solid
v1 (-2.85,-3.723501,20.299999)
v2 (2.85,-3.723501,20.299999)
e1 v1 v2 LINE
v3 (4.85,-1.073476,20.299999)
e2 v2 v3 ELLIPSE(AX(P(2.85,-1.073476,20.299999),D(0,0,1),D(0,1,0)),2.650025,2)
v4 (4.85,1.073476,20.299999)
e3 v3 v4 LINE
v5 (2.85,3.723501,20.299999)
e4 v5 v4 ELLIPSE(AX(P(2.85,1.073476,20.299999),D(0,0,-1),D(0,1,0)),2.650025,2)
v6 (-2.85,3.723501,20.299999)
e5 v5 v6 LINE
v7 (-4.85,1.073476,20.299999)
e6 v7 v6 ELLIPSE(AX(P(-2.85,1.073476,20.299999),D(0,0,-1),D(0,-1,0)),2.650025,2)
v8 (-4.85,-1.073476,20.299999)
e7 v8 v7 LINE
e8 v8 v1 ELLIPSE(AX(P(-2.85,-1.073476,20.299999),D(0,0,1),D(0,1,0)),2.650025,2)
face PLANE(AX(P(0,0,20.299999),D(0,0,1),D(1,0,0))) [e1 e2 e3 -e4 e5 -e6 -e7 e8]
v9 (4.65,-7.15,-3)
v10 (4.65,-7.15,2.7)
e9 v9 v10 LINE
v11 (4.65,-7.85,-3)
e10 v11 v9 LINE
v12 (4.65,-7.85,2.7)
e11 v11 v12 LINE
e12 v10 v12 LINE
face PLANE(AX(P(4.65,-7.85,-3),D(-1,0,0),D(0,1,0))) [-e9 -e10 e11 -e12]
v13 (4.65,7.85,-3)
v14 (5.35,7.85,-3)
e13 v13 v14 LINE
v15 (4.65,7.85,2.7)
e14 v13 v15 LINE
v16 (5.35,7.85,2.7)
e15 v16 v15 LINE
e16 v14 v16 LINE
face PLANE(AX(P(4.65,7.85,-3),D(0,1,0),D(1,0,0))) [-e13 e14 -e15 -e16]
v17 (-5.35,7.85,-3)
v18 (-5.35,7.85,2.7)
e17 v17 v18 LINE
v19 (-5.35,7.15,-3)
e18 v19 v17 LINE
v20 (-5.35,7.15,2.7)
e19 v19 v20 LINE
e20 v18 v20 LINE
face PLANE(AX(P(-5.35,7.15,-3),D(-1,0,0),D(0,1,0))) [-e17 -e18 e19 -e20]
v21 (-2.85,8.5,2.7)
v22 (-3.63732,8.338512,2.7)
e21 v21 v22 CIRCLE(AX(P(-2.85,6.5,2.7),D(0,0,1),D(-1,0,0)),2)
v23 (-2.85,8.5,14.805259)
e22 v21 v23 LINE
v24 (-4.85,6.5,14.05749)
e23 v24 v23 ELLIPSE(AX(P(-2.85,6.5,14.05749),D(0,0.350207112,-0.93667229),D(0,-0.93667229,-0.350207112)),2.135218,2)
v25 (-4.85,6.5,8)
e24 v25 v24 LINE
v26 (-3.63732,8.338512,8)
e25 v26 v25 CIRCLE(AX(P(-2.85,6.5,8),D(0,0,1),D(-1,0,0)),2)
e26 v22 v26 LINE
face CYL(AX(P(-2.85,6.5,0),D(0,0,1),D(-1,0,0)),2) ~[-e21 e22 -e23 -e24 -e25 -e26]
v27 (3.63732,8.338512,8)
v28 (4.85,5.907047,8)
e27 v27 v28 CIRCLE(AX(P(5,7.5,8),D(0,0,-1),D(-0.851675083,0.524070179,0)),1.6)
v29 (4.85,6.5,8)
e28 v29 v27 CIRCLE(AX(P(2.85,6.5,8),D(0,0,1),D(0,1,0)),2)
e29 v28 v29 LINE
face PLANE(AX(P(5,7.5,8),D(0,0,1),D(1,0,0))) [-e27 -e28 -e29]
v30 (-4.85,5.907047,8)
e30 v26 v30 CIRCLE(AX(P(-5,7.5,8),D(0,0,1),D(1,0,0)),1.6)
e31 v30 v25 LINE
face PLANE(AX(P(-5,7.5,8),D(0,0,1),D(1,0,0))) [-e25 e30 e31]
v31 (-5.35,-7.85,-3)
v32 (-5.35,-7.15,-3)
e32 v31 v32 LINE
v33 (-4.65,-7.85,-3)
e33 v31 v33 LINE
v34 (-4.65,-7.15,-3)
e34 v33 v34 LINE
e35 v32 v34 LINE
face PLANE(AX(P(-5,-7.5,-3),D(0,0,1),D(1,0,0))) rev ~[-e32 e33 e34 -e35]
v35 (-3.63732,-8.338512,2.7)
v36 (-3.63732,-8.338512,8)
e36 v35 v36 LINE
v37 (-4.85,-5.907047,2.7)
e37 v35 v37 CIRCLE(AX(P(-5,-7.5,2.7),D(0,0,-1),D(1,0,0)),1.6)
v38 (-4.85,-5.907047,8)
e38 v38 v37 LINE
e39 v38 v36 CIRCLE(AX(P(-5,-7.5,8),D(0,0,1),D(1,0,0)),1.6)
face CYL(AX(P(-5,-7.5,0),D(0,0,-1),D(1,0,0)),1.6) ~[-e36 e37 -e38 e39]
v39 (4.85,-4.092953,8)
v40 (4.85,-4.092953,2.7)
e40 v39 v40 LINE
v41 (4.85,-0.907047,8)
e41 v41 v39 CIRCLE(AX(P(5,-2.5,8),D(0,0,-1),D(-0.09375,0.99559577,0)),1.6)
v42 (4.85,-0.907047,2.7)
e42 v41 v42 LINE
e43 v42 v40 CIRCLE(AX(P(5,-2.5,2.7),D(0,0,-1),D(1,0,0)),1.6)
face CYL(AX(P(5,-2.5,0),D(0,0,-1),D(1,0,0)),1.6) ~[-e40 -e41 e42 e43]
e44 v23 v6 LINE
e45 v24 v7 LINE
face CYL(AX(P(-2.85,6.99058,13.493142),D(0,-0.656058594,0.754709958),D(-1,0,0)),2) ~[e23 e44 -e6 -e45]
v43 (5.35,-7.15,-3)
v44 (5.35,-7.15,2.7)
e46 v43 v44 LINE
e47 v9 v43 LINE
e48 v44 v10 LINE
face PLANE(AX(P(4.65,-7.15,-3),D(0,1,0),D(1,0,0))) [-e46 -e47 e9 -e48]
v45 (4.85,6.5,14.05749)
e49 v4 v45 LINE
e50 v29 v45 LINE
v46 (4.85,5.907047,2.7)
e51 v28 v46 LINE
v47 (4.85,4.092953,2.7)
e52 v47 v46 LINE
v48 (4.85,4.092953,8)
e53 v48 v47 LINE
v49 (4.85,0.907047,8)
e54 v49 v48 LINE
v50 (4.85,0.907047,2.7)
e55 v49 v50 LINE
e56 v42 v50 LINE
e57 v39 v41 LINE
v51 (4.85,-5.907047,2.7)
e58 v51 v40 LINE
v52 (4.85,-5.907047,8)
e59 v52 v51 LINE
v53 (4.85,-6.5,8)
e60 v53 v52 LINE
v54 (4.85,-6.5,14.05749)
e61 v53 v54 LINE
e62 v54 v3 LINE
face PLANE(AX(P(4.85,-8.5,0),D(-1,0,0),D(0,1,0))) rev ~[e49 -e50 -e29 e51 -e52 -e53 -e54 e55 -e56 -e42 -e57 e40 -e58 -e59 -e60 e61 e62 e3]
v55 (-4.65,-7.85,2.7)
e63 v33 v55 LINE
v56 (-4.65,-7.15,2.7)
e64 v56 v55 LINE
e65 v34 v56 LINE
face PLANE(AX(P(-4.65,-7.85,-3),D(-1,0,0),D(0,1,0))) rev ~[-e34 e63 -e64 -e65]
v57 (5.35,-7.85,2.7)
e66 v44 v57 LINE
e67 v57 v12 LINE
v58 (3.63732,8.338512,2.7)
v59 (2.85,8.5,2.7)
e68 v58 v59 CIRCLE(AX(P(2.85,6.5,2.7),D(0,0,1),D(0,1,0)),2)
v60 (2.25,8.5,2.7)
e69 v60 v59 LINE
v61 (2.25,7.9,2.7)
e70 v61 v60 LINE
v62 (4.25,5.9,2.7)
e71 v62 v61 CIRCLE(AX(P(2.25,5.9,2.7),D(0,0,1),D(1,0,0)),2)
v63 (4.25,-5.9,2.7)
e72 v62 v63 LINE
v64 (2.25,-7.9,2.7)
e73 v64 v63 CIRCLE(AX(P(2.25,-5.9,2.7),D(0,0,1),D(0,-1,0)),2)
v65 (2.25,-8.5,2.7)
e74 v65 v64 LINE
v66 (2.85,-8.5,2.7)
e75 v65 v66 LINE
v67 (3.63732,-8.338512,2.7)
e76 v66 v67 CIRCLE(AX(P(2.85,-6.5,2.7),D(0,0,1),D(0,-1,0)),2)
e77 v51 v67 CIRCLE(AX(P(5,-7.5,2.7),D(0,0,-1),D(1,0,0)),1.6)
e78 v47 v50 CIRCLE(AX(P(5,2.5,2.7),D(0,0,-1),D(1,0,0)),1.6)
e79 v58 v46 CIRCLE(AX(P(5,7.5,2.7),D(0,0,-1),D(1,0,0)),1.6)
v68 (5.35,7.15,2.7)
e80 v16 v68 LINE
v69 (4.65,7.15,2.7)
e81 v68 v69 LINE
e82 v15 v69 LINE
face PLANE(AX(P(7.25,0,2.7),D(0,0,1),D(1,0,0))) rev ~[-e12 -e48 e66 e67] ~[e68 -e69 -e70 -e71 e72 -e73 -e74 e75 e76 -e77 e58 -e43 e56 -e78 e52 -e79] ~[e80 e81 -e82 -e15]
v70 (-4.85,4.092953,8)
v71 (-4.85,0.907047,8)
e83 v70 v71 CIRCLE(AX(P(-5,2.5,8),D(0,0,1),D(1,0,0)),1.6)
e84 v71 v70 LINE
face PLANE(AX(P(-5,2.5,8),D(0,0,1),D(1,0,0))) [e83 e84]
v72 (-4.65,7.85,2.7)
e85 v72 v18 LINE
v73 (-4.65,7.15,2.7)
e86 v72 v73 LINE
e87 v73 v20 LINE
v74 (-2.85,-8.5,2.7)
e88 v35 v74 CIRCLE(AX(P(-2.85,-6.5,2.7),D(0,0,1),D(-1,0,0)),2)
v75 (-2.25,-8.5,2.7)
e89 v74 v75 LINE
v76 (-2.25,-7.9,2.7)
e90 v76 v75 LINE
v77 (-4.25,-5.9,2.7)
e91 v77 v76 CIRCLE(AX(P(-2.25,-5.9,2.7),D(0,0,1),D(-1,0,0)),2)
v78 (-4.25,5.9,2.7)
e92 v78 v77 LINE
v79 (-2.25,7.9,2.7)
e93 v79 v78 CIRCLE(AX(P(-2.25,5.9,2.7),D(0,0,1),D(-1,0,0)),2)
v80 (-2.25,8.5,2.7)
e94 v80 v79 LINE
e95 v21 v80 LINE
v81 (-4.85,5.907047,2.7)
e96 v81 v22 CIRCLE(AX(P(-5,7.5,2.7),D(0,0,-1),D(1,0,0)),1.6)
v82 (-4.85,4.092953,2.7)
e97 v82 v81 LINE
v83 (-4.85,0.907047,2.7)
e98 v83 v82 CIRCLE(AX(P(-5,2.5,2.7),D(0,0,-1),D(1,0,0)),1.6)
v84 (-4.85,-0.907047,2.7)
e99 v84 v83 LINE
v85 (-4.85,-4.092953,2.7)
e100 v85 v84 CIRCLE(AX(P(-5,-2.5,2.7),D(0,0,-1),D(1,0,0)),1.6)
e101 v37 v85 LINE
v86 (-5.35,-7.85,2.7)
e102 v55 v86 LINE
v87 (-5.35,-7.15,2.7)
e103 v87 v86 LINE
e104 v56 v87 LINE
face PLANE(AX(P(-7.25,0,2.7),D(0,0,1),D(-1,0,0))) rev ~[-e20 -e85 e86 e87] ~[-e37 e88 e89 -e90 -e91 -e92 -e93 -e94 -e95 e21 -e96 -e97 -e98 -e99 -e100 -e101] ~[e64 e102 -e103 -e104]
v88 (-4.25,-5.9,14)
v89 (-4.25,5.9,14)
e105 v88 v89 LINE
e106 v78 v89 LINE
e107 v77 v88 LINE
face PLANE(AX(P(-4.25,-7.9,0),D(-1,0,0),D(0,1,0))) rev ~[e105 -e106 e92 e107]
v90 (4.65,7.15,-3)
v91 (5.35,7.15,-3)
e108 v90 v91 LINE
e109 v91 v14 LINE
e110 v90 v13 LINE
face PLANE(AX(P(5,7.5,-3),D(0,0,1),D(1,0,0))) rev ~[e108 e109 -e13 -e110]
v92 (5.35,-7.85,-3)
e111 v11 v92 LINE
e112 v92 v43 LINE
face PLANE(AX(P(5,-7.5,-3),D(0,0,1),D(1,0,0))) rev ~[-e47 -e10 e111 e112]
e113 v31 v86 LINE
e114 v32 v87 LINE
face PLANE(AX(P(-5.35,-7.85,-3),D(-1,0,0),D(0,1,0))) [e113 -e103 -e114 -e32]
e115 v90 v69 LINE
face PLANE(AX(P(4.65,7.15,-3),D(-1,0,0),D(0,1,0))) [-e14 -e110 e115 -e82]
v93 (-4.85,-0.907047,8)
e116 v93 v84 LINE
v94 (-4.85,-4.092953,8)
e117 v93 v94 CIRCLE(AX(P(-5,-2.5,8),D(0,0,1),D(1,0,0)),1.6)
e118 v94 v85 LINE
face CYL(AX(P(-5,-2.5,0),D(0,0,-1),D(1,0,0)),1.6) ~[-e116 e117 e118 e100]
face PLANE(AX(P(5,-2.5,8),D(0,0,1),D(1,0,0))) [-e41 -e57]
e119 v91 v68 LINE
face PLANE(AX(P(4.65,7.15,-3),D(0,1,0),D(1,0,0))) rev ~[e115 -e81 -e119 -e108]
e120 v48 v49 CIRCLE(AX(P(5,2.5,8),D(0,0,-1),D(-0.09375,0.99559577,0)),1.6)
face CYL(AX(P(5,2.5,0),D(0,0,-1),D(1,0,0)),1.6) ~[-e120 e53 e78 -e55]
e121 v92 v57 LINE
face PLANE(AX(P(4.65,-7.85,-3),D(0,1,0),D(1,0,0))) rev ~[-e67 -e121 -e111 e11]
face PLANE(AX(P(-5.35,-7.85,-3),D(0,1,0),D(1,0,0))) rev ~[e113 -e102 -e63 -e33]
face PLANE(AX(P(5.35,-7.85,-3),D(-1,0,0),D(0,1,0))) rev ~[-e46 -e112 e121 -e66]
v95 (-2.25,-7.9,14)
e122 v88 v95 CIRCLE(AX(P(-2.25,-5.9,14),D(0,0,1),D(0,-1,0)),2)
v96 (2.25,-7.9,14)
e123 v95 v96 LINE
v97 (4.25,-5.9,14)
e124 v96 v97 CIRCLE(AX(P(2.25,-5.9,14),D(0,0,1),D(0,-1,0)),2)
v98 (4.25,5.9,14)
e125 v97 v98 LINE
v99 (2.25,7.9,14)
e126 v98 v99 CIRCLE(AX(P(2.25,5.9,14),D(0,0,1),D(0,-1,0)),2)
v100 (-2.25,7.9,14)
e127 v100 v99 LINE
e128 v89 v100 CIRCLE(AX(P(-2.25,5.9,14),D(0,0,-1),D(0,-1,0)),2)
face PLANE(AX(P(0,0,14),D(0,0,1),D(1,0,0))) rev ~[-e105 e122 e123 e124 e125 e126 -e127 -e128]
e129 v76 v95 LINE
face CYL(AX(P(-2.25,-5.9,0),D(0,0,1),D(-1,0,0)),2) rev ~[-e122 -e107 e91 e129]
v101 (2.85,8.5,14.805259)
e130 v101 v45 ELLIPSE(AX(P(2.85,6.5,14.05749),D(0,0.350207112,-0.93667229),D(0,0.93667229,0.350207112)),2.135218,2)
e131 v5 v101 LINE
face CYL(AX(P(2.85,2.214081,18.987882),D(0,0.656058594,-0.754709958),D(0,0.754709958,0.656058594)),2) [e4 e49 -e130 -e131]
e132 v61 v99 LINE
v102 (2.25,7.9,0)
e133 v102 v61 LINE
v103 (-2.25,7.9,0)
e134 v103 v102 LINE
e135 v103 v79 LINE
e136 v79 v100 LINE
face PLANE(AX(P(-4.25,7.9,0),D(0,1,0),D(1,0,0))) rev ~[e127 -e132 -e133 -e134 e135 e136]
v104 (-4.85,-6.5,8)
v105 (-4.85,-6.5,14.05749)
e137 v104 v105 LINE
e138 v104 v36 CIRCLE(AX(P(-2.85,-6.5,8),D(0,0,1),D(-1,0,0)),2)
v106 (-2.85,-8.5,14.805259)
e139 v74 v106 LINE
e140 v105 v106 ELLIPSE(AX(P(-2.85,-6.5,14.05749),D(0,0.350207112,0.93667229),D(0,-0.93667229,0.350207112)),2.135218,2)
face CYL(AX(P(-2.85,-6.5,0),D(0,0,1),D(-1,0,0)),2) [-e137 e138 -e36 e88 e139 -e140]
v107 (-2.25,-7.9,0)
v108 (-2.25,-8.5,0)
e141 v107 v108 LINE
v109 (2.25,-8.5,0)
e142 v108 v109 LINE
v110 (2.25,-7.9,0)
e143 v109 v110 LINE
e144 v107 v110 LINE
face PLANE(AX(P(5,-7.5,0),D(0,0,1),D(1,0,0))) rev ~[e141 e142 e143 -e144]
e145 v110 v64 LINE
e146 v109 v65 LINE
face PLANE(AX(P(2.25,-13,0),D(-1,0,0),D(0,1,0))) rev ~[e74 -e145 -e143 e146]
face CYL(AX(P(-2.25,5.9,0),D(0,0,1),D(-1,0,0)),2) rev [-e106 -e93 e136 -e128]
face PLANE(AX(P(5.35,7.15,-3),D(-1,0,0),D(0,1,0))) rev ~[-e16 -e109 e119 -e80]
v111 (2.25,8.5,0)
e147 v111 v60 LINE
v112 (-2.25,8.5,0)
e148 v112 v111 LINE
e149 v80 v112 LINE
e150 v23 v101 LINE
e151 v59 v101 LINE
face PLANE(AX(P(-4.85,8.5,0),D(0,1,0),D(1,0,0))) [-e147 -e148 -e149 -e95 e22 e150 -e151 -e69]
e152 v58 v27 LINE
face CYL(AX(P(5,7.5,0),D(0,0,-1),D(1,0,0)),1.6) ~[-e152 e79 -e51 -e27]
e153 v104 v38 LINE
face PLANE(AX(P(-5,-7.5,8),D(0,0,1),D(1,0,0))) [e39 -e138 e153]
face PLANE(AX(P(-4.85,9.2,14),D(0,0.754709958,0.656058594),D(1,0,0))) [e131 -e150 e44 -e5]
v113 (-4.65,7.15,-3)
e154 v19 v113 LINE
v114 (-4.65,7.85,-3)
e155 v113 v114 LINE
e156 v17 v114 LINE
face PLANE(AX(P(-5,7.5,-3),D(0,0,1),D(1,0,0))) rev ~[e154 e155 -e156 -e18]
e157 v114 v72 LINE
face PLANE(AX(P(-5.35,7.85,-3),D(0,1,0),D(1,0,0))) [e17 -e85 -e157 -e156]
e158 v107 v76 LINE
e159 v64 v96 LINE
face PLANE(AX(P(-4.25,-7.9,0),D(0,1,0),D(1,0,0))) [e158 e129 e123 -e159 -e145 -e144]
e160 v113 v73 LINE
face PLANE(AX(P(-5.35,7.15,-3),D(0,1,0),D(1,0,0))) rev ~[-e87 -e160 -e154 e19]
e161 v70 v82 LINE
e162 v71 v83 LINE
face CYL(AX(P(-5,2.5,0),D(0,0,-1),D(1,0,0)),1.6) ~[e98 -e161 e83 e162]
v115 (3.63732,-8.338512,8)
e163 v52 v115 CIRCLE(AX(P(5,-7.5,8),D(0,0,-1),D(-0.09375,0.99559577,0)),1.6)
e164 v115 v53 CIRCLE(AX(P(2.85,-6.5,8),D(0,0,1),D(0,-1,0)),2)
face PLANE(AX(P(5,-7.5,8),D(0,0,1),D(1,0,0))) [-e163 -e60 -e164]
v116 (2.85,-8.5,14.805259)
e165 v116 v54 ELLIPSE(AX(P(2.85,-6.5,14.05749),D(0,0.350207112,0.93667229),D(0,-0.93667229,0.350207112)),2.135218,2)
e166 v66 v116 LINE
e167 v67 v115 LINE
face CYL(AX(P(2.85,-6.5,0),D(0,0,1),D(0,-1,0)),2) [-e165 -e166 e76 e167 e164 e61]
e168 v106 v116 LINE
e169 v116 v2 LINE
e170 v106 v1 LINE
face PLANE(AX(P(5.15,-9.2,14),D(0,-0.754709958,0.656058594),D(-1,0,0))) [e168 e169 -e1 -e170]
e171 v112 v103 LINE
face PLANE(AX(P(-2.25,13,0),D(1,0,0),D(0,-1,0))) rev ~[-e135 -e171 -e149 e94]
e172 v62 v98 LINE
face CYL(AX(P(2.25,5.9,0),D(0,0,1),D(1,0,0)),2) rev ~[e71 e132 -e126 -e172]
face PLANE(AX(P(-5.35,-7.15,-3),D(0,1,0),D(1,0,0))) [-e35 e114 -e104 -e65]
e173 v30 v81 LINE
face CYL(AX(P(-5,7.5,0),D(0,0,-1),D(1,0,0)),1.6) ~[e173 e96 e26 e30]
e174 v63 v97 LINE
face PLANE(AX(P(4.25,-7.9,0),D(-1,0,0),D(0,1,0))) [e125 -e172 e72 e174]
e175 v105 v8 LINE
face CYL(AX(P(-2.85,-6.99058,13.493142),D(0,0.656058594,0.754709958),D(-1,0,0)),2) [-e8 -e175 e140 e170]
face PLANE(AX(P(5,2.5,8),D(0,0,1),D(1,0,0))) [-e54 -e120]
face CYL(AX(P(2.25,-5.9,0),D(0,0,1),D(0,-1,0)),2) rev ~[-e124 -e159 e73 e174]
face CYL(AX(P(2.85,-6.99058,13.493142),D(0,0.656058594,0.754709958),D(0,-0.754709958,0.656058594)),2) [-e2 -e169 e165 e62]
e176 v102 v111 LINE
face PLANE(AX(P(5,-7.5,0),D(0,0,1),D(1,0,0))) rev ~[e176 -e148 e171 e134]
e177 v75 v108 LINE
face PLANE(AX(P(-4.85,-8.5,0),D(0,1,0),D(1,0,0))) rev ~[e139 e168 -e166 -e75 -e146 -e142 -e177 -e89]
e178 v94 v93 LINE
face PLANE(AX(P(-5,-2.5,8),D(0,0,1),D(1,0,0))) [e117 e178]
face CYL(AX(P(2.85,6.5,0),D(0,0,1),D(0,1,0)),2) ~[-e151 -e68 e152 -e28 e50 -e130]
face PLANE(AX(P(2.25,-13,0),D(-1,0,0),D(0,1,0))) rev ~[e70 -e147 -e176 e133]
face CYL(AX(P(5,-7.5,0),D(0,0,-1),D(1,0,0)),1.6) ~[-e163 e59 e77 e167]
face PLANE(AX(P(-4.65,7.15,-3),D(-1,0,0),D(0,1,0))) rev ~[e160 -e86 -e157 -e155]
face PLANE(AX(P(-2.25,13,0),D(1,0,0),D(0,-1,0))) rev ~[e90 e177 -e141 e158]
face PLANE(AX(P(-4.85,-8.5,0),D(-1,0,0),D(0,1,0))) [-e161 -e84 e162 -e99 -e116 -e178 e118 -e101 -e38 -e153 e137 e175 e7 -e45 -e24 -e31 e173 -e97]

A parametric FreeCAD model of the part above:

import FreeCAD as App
import Part
import Sketcher
from FreeCAD import Vector


def edges_at(feature, points):
    """Names of the edges that pass closest to the given points."""
    edges = feature.Shape.Edges
    near = lambda p: min(range(len(edges)), key=lambda i: edges[i].distToShape(Part.Vertex(*p))[0])
    return sorted({f"Edge{near(p) + 1}" for p in points})

doc = App.newDocument("Part")
body = doc.addObject("PartDesign::Body", "Body")

# Sketch on XY plane
sketch1 = body.newObject("Sketcher::SketchObject", "Sketch")
sketch1.AttachmentSupport = (doc.getObject("XY_Plane"), [""])
sketch1.MapMode = "FlatFace"
sketch1.AttachmentOffset = App.Placement(Vector(0, 0, -3), App.Rotation())
sketch1.addGeometry([
    Part.LineSegment(Vector(-5.3, 7.8, 0), Vector(-5.3, 7.2, 0)),
    Part.LineSegment(Vector(-5.3, 7.2, 0), Vector(-4.7, 7.2, 0)),
    Part.LineSegment(Vector(-4.7, 7.2, 0), Vector(-4.7, 7.8, 0)),
    Part.LineSegment(Vector(-4.7, 7.8, 0), Vector(-5.3, 7.8, 0)),
], False)
sketch1.addConstraint([
    Sketcher.Constraint("Coincident", 0, 2, 1, 1),
    Sketcher.Constraint("Coincident", 1, 2, 2, 1),
    Sketcher.Constraint("Coincident", 2, 2, 3, 1),
    Sketcher.Constraint("Coincident", 3, 2, 0, 1),
    Sketcher.Constraint("Vertical", 0),
    Sketcher.Constraint("Horizontal", 1),
    Sketcher.Constraint("Vertical", 2),
    Sketcher.Constraint("Horizontal", 3),
    Sketcher.Constraint("Equal", 3, 0),
    Sketcher.Constraint("DistanceX", 1, 1, 1, 2, 0.7),
    Sketcher.Constraint("DistanceX", 0, 2, -1, 1, 5.35),
    Sketcher.Constraint("DistanceY", -1, 1, 0, 2, 7.15),
])
pad1 = body.newObject("PartDesign::Pad", "Pad")
pad1.Profile = sketch1
pad1.Length = 6
body2 = doc.addObject("PartDesign::Body", "Body001")

# Sketch on XY plane
sketch2 = body2.newObject("Sketcher::SketchObject", "Sketch001")
sketch2.AttachmentSupport = (doc.getObject("XY_Plane001"), [""])
sketch2.MapMode = "FlatFace"
sketch2.AttachmentOffset = App.Placement(Vector(0, 0, -3), App.Rotation())
sketch2.addGeometry([
    Part.LineSegment(Vector(-5.3, -7.2, 0), Vector(-5.3, -7.8, 0)),
    Part.LineSegment(Vector(-5.3, -7.8, 0), Vector(-4.7, -7.8, 0)),
    Part.LineSegment(Vector(-4.7, -7.8, 0), Vector(-4.7, -7.2, 0)),
    Part.LineSegment(Vector(-4.7, -7.2, 0), Vector(-5.3, -7.2, 0)),
], False)
sketch2.addConstraint([
    Sketcher.Constraint("Coincident", 0, 2, 1, 1),
    Sketcher.Constraint("Coincident", 1, 2, 2, 1),
    Sketcher.Constraint("Coincident", 2, 2, 3, 1),
    Sketcher.Constraint("Coincident", 3, 2, 0, 1),
    Sketcher.Constraint("Vertical", 0),
    Sketcher.Constraint("Horizontal", 1),
    Sketcher.Constraint("Vertical", 2),
    Sketcher.Constraint("Horizontal", 3),
    Sketcher.Constraint("Equal", 3, 0),
    Sketcher.Constraint("DistanceX", 1, 1, 1, 2, 0.7),
    Sketcher.Constraint("DistanceX", 0, 2, -1, 1, 5.35),
    Sketcher.Constraint("DistanceY", 0, 2, -1, 1, 7.85),
])
pad2 = body2.newObject("PartDesign::Pad", "Pad001")
pad2.Profile = sketch2
pad2.Length = 6
body3 = doc.addObject("PartDesign::Body", "Body002")

# Sketch on XY plane
sketch3 = body3.newObject("Sketcher::SketchObject", "Sketch002")
sketch3.AttachmentSupport = (doc.getObject("XY_Plane002"), [""])
sketch3.MapMode = "FlatFace"
sketch3.AttachmentOffset = App.Placement(Vector(0, 0, -3), App.Rotation())
sketch3.addGeometry([
    Part.LineSegment(Vector(4.7, -7.2, 0), Vector(4.7, -7.8, 0)),
    Part.LineSegment(Vector(4.7, -7.8, 0), Vector(5.3, -7.8, 0)),
    Part.LineSegment(Vector(5.3, -7.8, 0), Vector(5.3, -7.2, 0)),
    Part.LineSegment(Vector(5.3, -7.2, 0), Vector(4.7, -7.2, 0)),
], False)
sketch3.addConstraint([
    Sketcher.Constraint("Coincident", 0, 2, 1, 1),
    Sketcher.Constraint("Coincident", 1, 2, 2, 1),
    Sketcher.Constraint("Coincident", 2, 2, 3, 1),
    Sketcher.Constraint("Coincident", 3, 2, 0, 1),
    Sketcher.Constraint("Vertical", 0),
    Sketcher.Constraint("Horizontal", 1),
    Sketcher.Constraint("Vertical", 2),
    Sketcher.Constraint("Horizontal", 3),
    Sketcher.Constraint("Equal", 3, 0),
    Sketcher.Constraint("DistanceX", 1, 1, 1, 2, 0.7),
    Sketcher.Constraint("DistanceX", -1, 1, 0, 2, 4.65),
    Sketcher.Constraint("DistanceY", 0, 2, -1, 1, 7.85),
])
pad3 = body3.newObject("PartDesign::Pad", "Pad002")
pad3.Profile = sketch3
pad3.Length = 6
body4 = doc.addObject("PartDesign::Body", "Body003")
body4.AllowCompound = True

# Sketch on XY plane
sketch4 = body4.newObject("Sketcher::SketchObject", "Sketch003")
sketch4.AttachmentSupport = (doc.getObject("XY_Plane003"), [""])
sketch4.MapMode = "FlatFace"
sketch4.AttachmentOffset = App.Placement(Vector(0, 0, -3), App.Rotation())
sketch4.addGeometry([
    Part.LineSegment(Vector(4.7, 7.8, 0), Vector(4.7, 7.2, 0)),
    Part.LineSegment(Vector(4.7, 7.2, 0), Vector(5.3, 7.2, 0)),
    Part.LineSegment(Vector(5.3, 7.2, 0), Vector(5.3, 7.8, 0)),
    Part.LineSegment(Vector(5.3, 7.8, 0), Vector(4.7, 7.8, 0)),
], False)
sketch4.addConstraint([
    Sketcher.Constraint("Coincident", 0, 2, 1, 1),
    Sketcher.Constraint("Coincident", 1, 2, 2, 1),
    Sketcher.Constraint("Coincident", 2, 2, 3, 1),
    Sketcher.Constraint("Coincident", 3, 2, 0, 1),
    Sketcher.Constraint("Vertical", 0),
    Sketcher.Constraint("Horizontal", 1),
    Sketcher.Constraint("Vertical", 2),
    Sketcher.Constraint("Horizontal", 3),
    Sketcher.Constraint("Equal", 3, 0),
    Sketcher.Constraint("DistanceX", 1, 1, 1, 2, 0.7),
    Sketcher.Constraint("DistanceX", -1, 1, 0, 2, 4.65),
    Sketcher.Constraint("DistanceY", -1, 1, 0, 2, 7.15),
])
pad4 = body4.newObject("PartDesign::Pad", "Pad003")
pad4.Profile = sketch4
pad4.Length = 6
doc.recompute()

boolean = body4.newObject("PartDesign::Boolean", "Boolean")
boolean.Type = "Fuse"
boolean.addObjects([body])
doc.recompute()

boolean2 = body4.newObject("PartDesign::Boolean", "Boolean001")
boolean2.Type = "Fuse"
boolean2.addObjects([body2])
doc.recompute()

boolean3 = body4.newObject("PartDesign::Boolean", "Boolean002")
boolean3.Type = "Fuse"
boolean3.addObjects([body3])
body5 = doc.addObject("PartDesign::Body", "Body004")

# Sketch on XY plane
sketch5 = body5.newObject("Sketcher::SketchObject", "Sketch004")
sketch5.AttachmentSupport = (doc.getObject("XY_Plane004"), [""])
sketch5.MapMode = "FlatFace"
sketch5.addGeometry([
    Part.LineSegment(Vector(-2, -13, 0), Vector(-2, 13, 0)),
    Part.LineSegment(Vector(-2, 13, 0), Vector(-12, 13, 0)),
    Part.LineSegment(Vector(-12, 13, 0), Vector(-12, -13, 0)),
    Part.LineSegment(Vector(-12, -13, 0), Vector(-2, -13, 0)),
], False)
sketch5.addConstraint([
    Sketcher.Constraint("Coincident", 0, 2, 1, 1),
    Sketcher.Constraint("Coincident", 1, 2, 2, 1),
    Sketcher.Constraint("Coincident", 2, 2, 3, 1),
    Sketcher.Constraint("Coincident", 3, 2, 0, 1),
    Sketcher.Constraint("Vertical", 0),
    Sketcher.Constraint("Horizontal", 1),
    Sketcher.Constraint("Vertical", 2),
    Sketcher.Constraint("Horizontal", 3),
    Sketcher.Constraint("DistanceX", 1, 2, 1, 1, 10.0),
    Sketcher.Constraint("DistanceY", 0, 1, 0, 2, 26.0),
    Sketcher.Constraint("DistanceY", -1, 1, 0, 2, 13.0),
    Sketcher.Constraint("DistanceX", 0, 2, -1, 1, 2.25),
])
pad5 = body5.newObject("PartDesign::Pad", "Pad004")
pad5.Profile = sketch5
pad5.Length = 2.7
body6 = doc.addObject("PartDesign::Body", "Body005")

# Sketch on XY plane
sketch6 = body6.newObject("Sketcher::SketchObject", "Sketch005")
sketch6.AttachmentSupport = (doc.getObject("XY_Plane005"), [""])
sketch6.MapMode = "FlatFace"
sketch6.addGeometry([
    Part.LineSegment(Vector(-4, 8, 0), Vector(-4, -8, 0)),
    Part.LineSegment(Vector(-4, -8, 0), Vector(4, -8, 0)),
    Part.LineSegment(Vector(4, -8, 0), Vector(4, 8, 0)),
    Part.LineSegment(Vector(4, 8, 0), Vector(-4, 8, 0)),
], False)
sketch6.addConstraint([
    Sketcher.Constraint("Coincident", 0, 2, 1, 1),
    Sketcher.Constraint("Coincident", 1, 2, 2, 1),
    Sketcher.Constraint("Coincident", 2, 2, 3, 1),
    Sketcher.Constraint("Coincident", 3, 2, 0, 1),
    Sketcher.Constraint("Vertical", 0),
    Sketcher.Constraint("Horizontal", 1),
    Sketcher.Constraint("Vertical", 2),
    Sketcher.Constraint("Horizontal", 3),
    Sketcher.Constraint("Symmetric", 0, 2, 2, 2, -1, 1),
    Sketcher.Constraint("DistanceX", 1, 1, 1, 2, 8.5),
    Sketcher.Constraint("DistanceY", 0, 2, 0, 1, 15.8),
])
pad6 = body6.newObject("PartDesign::Pad", "Pad005")
pad6.Profile = sketch6
pad6.Length = 14
doc.recompute()

fillet = body6.newObject("PartDesign::Fillet", "Fillet")
fillet.Base = (pad6, edges_at(pad6, [
    (-4.25, -7.9, 7),
    (-4.25, 7.9, 7),
    (4.25, -7.9, 7),
    (4.25, 7.9, 7),
]))
fillet.Radius = 2
body7 = doc.addObject("PartDesign::Body", "Body006")
body7.AllowCompound = True

# Sketch on XY plane
sketch7 = body7.newObject("Sketcher::SketchObject", "Sketch006")
sketch7.AttachmentSupport = (doc.getObject("XY_Plane006"), [""])
sketch7.MapMode = "FlatFace"
sketch7.addGeometry([
    Part.LineSegment(Vector(2, 13, 0), Vector(2, -13, 0)),
    Part.LineSegment(Vector(2, -13, 0), Vector(12, -13, 0)),
    Part.LineSegment(Vector(12, -13, 0), Vector(12, 13, 0)),
    Part.LineSegment(Vector(12, 13, 0), Vector(2, 13, 0)),
], False)
sketch7.addConstraint([
    Sketcher.Constraint("Coincident", 0, 2, 1, 1),
    Sketcher.Constraint("Coincident", 1, 2, 2, 1),
    Sketcher.Constraint("Coincident", 2, 2, 3, 1),
    Sketcher.Constraint("Coincident", 3, 2, 0, 1),
    Sketcher.Constraint("Vertical", 0),
    Sketcher.Constraint("Horizontal", 1),
    Sketcher.Constraint("Vertical", 2),
    Sketcher.Constraint("Horizontal", 3),
    Sketcher.Constraint("DistanceX", 1, 1, 1, 2, 10.0),
    Sketcher.Constraint("DistanceY", 0, 2, 0, 1, 26.0),
    Sketcher.Constraint("DistanceY", 0, 2, -1, 1, 13.0),
    Sketcher.Constraint("DistanceX", -1, 1, 0, 2, 2.25),
])
pad7 = body7.newObject("PartDesign::Pad", "Pad006")
pad7.Profile = sketch7
pad7.Length = 2.7
doc.recompute()

boolean4 = body7.newObject("PartDesign::Boolean", "Boolean003")
boolean4.Type = "Fuse"
boolean4.addObjects([body5])
doc.recompute()

boolean5 = body7.newObject("PartDesign::Boolean", "Boolean004")
boolean5.Type = "Fuse"
boolean5.addObjects([body6])
body8 = doc.addObject("PartDesign::Body", "Body007")

# Sketch on XY plane
sketch8 = body8.newObject("Sketcher::SketchObject", "Sketch007")
sketch8.AttachmentSupport = (doc.getObject("XY_Plane007"), [""])
sketch8.MapMode = "FlatFace"
sketch8.addGeometry(Part.Circle(Vector(-5, 2.5, 0), Vector(0, 0, 1), 1.6), False)
sketch8.addConstraint([
    Sketcher.Constraint("Diameter", 0, 3.2),
    Sketcher.Constraint("DistanceX", 0, 3, -1, 1, 5.0),
    Sketcher.Constraint("DistanceY", -1, 1, 0, 3, 2.5),
])
pad8 = body8.newObject("PartDesign::Pad", "Pad007")
pad8.Profile = sketch8
pad8.Length = 8
body9 = doc.addObject("PartDesign::Body", "Body008")

# Sketch on XY plane
sketch9 = body9.newObject("Sketcher::SketchObject", "Sketch008")
sketch9.AttachmentSupport = (doc.getObject("XY_Plane008"), [""])
sketch9.MapMode = "FlatFace"
sketch9.addGeometry(Part.Circle(Vector(-5, -2.5, 0), Vector(0, 0, 1), 1.6), False)
sketch9.addConstraint([
    Sketcher.Constraint("Diameter", 0, 3.2),
    Sketcher.Constraint("DistanceX", 0, 3, -1, 1, 5.0),
    Sketcher.Constraint("DistanceY", 0, 3, -1, 1, 2.5),
])
pad9 = body9.newObject("PartDesign::Pad", "Pad008")
pad9.Profile = sketch9
pad9.Length = 8
body10 = doc.addObject("PartDesign::Body", "Body009")

# Sketch on XY plane
sketch10 = body10.newObject("Sketcher::SketchObject", "Sketch009")
sketch10.AttachmentSupport = (doc.getObject("XY_Plane009"), [""])
sketch10.MapMode = "FlatFace"
sketch10.addGeometry(Part.Circle(Vector(-5, -7.5, 0), Vector(0, 0, 1), 1.6), False)
sketch10.addConstraint([
    Sketcher.Constraint("Diameter", 0, 3.2),
    Sketcher.Constraint("DistanceX", 0, 3, -1, 1, 5.0),
    Sketcher.Constraint("DistanceY", 0, 3, -1, 1, 7.5),
])
pad10 = body10.newObject("PartDesign::Pad", "Pad009")
pad10.Profile = sketch10
pad10.Length = 8
body11 = doc.addObject("PartDesign::Body", "Body010")

# Sketch on XY plane
sketch11 = body11.newObject("Sketcher::SketchObject", "Sketch010")
sketch11.AttachmentSupport = (doc.getObject("XY_Plane010"), [""])
sketch11.MapMode = "FlatFace"
sketch11.addGeometry(Part.Circle(Vector(5, 7.5, 0), Vector(0, 0, 1), 1.6), False)
sketch11.addConstraint([
    Sketcher.Constraint("Diameter", 0, 3.2),
    Sketcher.Constraint("DistanceX", -1, 1, 0, 3, 5.0),
    Sketcher.Constraint("DistanceY", -1, 1, 0, 3, 7.5),
])
pad11 = body11.newObject("PartDesign::Pad", "Pad010")
pad11.Profile = sketch11
pad11.Length = 8
body12 = doc.addObject("PartDesign::Body", "Body011")

# Sketch on XY plane
sketch12 = body12.newObject("Sketcher::SketchObject", "Sketch011")
sketch12.AttachmentSupport = (doc.getObject("XY_Plane011"), [""])
sketch12.MapMode = "FlatFace"
sketch12.addGeometry(Part.Circle(Vector(5, 2.5, 0), Vector(0, 0, 1), 1.6), False)
sketch12.addConstraint([
    Sketcher.Constraint("Diameter", 0, 3.2),
    Sketcher.Constraint("DistanceX", -1, 1, 0, 3, 5.0),
    Sketcher.Constraint("DistanceY", -1, 1, 0, 3, 2.5),
])
pad12 = body12.newObject("PartDesign::Pad", "Pad011")
pad12.Profile = sketch12
pad12.Length = 8
body13 = doc.addObject("PartDesign::Body", "Body012")

# Sketch on XY plane
sketch13 = body13.newObject("Sketcher::SketchObject", "Sketch012")
sketch13.AttachmentSupport = (doc.getObject("XY_Plane012"), [""])
sketch13.MapMode = "FlatFace"
sketch13.addGeometry(Part.Circle(Vector(5, -2.5, 0), Vector(0, 0, 1), 1.6), False)
sketch13.addConstraint([
    Sketcher.Constraint("Diameter", 0, 3.2),
    Sketcher.Constraint("DistanceX", -1, 1, 0, 3, 5.0),
    Sketcher.Constraint("DistanceY", 0, 3, -1, 1, 2.5),
])
pad13 = body13.newObject("PartDesign::Pad", "Pad012")
pad13.Profile = sketch13
pad13.Length = 8
body14 = doc.addObject("PartDesign::Body", "Body013")

# Sketch on XY plane
sketch14 = body14.newObject("Sketcher::SketchObject", "Sketch013")
sketch14.AttachmentSupport = (doc.getObject("XY_Plane013"), [""])
sketch14.MapMode = "FlatFace"
sketch14.addGeometry(Part.Circle(Vector(5, -7.5, 0), Vector(0, 0, 1), 1.6), False)
sketch14.addConstraint([
    Sketcher.Constraint("Diameter", 0, 3.2),
    Sketcher.Constraint("DistanceX", -1, 1, 0, 3, 5.0),
    Sketcher.Constraint("DistanceY", 0, 3, -1, 1, 7.5),
])
pad14 = body14.newObject("PartDesign::Pad", "Pad013")
pad14.Profile = sketch14
pad14.Length = 8
body15 = doc.addObject("PartDesign::Body", "Body014")
body15.AllowCompound = True

# Sketch on XY plane
sketch15 = body15.newObject("Sketcher::SketchObject", "Sketch014")
sketch15.AttachmentSupport = (doc.getObject("XY_Plane014"), [""])
sketch15.MapMode = "FlatFace"
sketch15.addGeometry(Part.Circle(Vector(-5, 7.5, 0), Vector(0, 0, 1), 1.6), False)
sketch15.addConstraint([
    Sketcher.Constraint("Diameter", 0, 3.2),
    Sketcher.Constraint("DistanceX", 0, 3, -1, 1, 5.0),
    Sketcher.Constraint("DistanceY", -1, 1, 0, 3, 7.5),
])
pad15 = body15.newObject("PartDesign::Pad", "Pad014")
pad15.Profile = sketch15
pad15.Length = 8
doc.recompute()

boolean6 = body15.newObject("PartDesign::Boolean", "Boolean005")
boolean6.Type = "Fuse"
boolean6.addObjects([body8])
doc.recompute()

boolean7 = body15.newObject("PartDesign::Boolean", "Boolean006")
boolean7.Type = "Fuse"
boolean7.addObjects([body9])
doc.recompute()

boolean8 = body15.newObject("PartDesign::Boolean", "Boolean007")
boolean8.Type = "Fuse"
boolean8.addObjects([body10])
doc.recompute()

boolean9 = body15.newObject("PartDesign::Boolean", "Boolean008")
boolean9.Type = "Fuse"
boolean9.addObjects([body11])
doc.recompute()

boolean10 = body15.newObject("PartDesign::Boolean", "Boolean009")
boolean10.Type = "Fuse"
boolean10.addObjects([body12])
doc.recompute()

boolean11 = body15.newObject("PartDesign::Boolean", "Boolean010")
boolean11.Type = "Fuse"
boolean11.addObjects([body13])
doc.recompute()

boolean12 = body15.newObject("PartDesign::Boolean", "Boolean011")
boolean12.Type = "Fuse"
boolean12.addObjects([body14])
body16 = doc.addObject("PartDesign::Body", "Body015")

# Sketch on XY plane
sketch16 = body16.newObject("Sketcher::SketchObject", "Sketch015")
sketch16.AttachmentSupport = (doc.getObject("XY_Plane015"), [""])
sketch16.MapMode = "FlatFace"
sketch16.addGeometry([
    Part.LineSegment(Vector(0, 10, 0), Vector(0, 0, 0)),
    Part.LineSegment(Vector(0, 0, 0), Vector(10, 0, 0)),
    Part.LineSegment(Vector(10, 0, 0), Vector(10, 10, 0)),
    Part.LineSegment(Vector(10, 10, 0), Vector(0, 10, 0)),
], False)
sketch16.addConstraint([
    Sketcher.Constraint("Coincident", 0, 2, 1, 1),
    Sketcher.Constraint("Coincident", 1, 2, 2, 1),
    Sketcher.Constraint("Coincident", 2, 2, 3, 1),
    Sketcher.Constraint("Coincident", 3, 2, 0, 1),
    Sketcher.Constraint("Vertical", 0),
    Sketcher.Constraint("Horizontal", 1),
    Sketcher.Constraint("Vertical", 2),
    Sketcher.Constraint("Horizontal", 3),
    Sketcher.Constraint("Coincident", 0, 2, -1, 1),
    Sketcher.Constraint("Equal", 3, 0),
    Sketcher.Constraint("DistanceX", 1, 1, 1, 2, 10.0),
])
pad16 = body16.newObject("PartDesign::Pad", "Pad015")
pad16.Profile = sketch16
pad16.Length = 10
body17 = doc.addObject("PartDesign::Body", "Body016")
doc.recompute()

body16.Placement = App.Placement(Vector(0, 0, 0), App.Rotation(Vector(1, 0, 0), 40.999967))
boolean13 = body17.newObject("PartDesign::Boolean", "Boolean012")
boolean13.Type = "Fuse"
boolean13.addObjects([body16])
body18 = doc.addObject("PartDesign::Body", "Body017")
doc.recompute()

body17.Placement = App.Placement(Vector(10, -0.7, 14), App.Rotation(Vector(0, 0, 1), 180))
boolean14 = body18.newObject("PartDesign::Boolean", "Boolean013")
boolean14.Type = "Fuse"
boolean14.addObjects([body17])
body19 = doc.addObject("PartDesign::Body", "Body018")

# Sketch on XY plane
sketch17 = body19.newObject("Sketcher::SketchObject", "Sketch016")
sketch17.AttachmentSupport = (doc.getObject("XY_Plane018"), [""])
sketch17.MapMode = "FlatFace"
sketch17.addGeometry([
    Part.LineSegment(Vector(0, 10, 0), Vector(0, 0, 0)),
    Part.LineSegment(Vector(0, 0, 0), Vector(10, 0, 0)),
    Part.LineSegment(Vector(10, 0, 0), Vector(10, 10, 0)),
    Part.LineSegment(Vector(10, 10, 0), Vector(0, 10, 0)),
], False)
sketch17.addConstraint([
    Sketcher.Constraint("Coincident", 0, 2, 1, 1),
    Sketcher.Constraint("Coincident", 1, 2, 2, 1),
    Sketcher.Constraint("Coincident", 2, 2, 3, 1),
    Sketcher.Constraint("Coincident", 3, 2, 0, 1),
    Sketcher.Constraint("Vertical", 0),
    Sketcher.Constraint("Horizontal", 1),
    Sketcher.Constraint("Vertical", 2),
    Sketcher.Constraint("Horizontal", 3),
    Sketcher.Constraint("Coincident", 0, 2, -1, 1),
    Sketcher.Constraint("Equal", 3, 0),
    Sketcher.Constraint("DistanceX", 1, 1, 1, 2, 10.0),
])
pad17 = body19.newObject("PartDesign::Pad", "Pad016")
pad17.Profile = sketch17
pad17.Length = 10
body20 = doc.addObject("PartDesign::Body", "Body019")
doc.recompute()

body19.Placement = App.Placement(Vector(0, 0, 0), App.Rotation(Vector(1, 0, 0), 40.999967))
boolean15 = body20.newObject("PartDesign::Boolean", "Boolean014")
boolean15.Type = "Fuse"
boolean15.addObjects([body19])
body21 = doc.addObject("PartDesign::Body", "Body020")
body21.AllowCompound = True
doc.recompute()

body20.Placement = App.Placement(Vector(0, 17.7, 14), App.Rotation(Vector(0, 0, 1), 0))
boolean16 = body21.newObject("PartDesign::Boolean", "Boolean015")
boolean16.Type = "Fuse"
boolean16.addObjects([body20])
doc.recompute()

boolean17 = body21.newObject("PartDesign::Boolean", "Boolean016")
boolean17.Type = "Fuse"
boolean17.addObjects([body18])
body22 = doc.addObject("PartDesign::Body", "Body021")

# Sketch on XY plane
sketch18 = body22.newObject("Sketcher::SketchObject", "Sketch017")
sketch18.AttachmentSupport = (doc.getObject("XY_Plane021"), [""])
sketch18.MapMode = "FlatFace"
sketch18.addGeometry([
    Part.LineSegment(Vector(0, 17, 0), Vector(0, 0, 0)),
    Part.LineSegment(Vector(0, 0, 0), Vector(10, 0, 0)),
    Part.LineSegment(Vector(10, 0, 0), Vector(10, 17, 0)),
    Part.LineSegment(Vector(10, 17, 0), Vector(0, 17, 0)),
], False)
sketch18.addConstraint([
    Sketcher.Constraint("Coincident", 0, 2, 1, 1),
    Sketcher.Constraint("Coincident", 1, 2, 2, 1),
    Sketcher.Constraint("Coincident", 2, 2, 3, 1),
    Sketcher.Constraint("Coincident", 3, 2, 0, 1),
    Sketcher.Constraint("Vertical", 0),
    Sketcher.Constraint("Horizontal", 1),
    Sketcher.Constraint("Vertical", 2),
    Sketcher.Constraint("Horizontal", 3),
    Sketcher.Constraint("Coincident", 0, 2, -1, 1),
    Sketcher.Constraint("DistanceY", 0, 2, 0, 1, 17.0),
    Sketcher.Constraint("DistanceX", 1, 1, 1, 2, 9.7),
])
pad18 = body22.newObject("PartDesign::Pad", "Pad017")
pad18.Profile = sketch18
pad18.Length = 20.299999
doc.recompute()

boolean18 = body22.newObject("PartDesign::Boolean", "Boolean017")
boolean18.Type = "Cut"
boolean18.addObjects([body21])
doc.recompute()

fillet2 = body22.newObject("PartDesign::Fillet", "Fillet001")
fillet2.Base = (boolean18, edges_at(boolean18, [
    (0, 0, 7.403),
    (0, 2.388, 17.553),
    (0, 14.612, 17.553),
    (0, 17, 7.403),
    (9.7, 17, 7.403),
    (9.7, 0, 7.403),
    (9.7, 2.388, 17.553),
    (9.7, 14.612, 17.553),
]))
fillet2.Radius = 2
body23 = doc.addObject("PartDesign::Body", "Body022")
doc.recompute()

body22.Placement = App.Placement(Vector(-4.85, -8.5, 0), App.Rotation(Vector(0, 0, 1), 0))
boolean19 = body23.newObject("PartDesign::Boolean", "Boolean018")
boolean19.Type = "Fuse"
boolean19.addObjects([body22])
doc.recompute()

boolean20 = body23.newObject("PartDesign::Boolean", "Boolean019")
boolean20.Type = "Fuse"
boolean20.addObjects([body15])
doc.recompute()

boolean21 = body23.newObject("PartDesign::Boolean", "Boolean020")
boolean21.Type = "Cut"
boolean21.addObjects([body7])
doc.recompute()

boolean22 = body23.newObject("PartDesign::Boolean", "Boolean021")
boolean22.Type = "Fuse"
boolean22.addObjects([body4])

doc.recompute()
